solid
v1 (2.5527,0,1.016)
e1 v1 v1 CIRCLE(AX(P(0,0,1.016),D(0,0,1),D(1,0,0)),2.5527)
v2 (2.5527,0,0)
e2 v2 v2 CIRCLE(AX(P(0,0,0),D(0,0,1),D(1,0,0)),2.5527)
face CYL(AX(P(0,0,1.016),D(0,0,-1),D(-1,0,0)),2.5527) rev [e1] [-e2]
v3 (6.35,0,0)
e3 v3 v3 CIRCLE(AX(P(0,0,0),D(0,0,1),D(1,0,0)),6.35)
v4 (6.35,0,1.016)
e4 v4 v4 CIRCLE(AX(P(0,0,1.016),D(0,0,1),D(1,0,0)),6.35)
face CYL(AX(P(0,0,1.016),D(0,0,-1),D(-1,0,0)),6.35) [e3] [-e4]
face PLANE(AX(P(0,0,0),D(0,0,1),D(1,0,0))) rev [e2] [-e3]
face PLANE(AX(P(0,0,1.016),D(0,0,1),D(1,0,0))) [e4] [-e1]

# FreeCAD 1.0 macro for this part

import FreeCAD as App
import Part
import Sketcher
Q = App.Units.Quantity

doc = App.newDocument("Part")
body = doc.addObject("PartDesign::Body", "Body")

sketch1 = body.newObject("Sketcher::SketchObject", "Sketch")
sketch1.AttachmentSupport = (doc.getObject("XY_Plane"), [""])
sketch1.MapMode = "FlatFace"
sketch1.addGeometry([
    Part.Circle(App.Vector(0, 0, 0), App.Vector(0, 0, 1), 6.3),
    Part.Circle(App.Vector(0, 0, 0), App.Vector(0, 0, 1), 2.6),
], False)
sketch1.addConstraint([
    Sketcher.Constraint("Coincident", 0, 3, -1, 1),
    Sketcher.Constraint("Coincident", 1, 3, -1, 1),
    Sketcher.Constraint("Diameter", 0, Q("0.5 in")),
    Sketcher.Constraint("Diameter", 1, Q("0.201 in")),
])
pad1 = body.newObject("PartDesign::Pad", "Pad")
pad1.Profile = sketch1
pad1.Length = Q("0.04 in")

doc.recompute()
